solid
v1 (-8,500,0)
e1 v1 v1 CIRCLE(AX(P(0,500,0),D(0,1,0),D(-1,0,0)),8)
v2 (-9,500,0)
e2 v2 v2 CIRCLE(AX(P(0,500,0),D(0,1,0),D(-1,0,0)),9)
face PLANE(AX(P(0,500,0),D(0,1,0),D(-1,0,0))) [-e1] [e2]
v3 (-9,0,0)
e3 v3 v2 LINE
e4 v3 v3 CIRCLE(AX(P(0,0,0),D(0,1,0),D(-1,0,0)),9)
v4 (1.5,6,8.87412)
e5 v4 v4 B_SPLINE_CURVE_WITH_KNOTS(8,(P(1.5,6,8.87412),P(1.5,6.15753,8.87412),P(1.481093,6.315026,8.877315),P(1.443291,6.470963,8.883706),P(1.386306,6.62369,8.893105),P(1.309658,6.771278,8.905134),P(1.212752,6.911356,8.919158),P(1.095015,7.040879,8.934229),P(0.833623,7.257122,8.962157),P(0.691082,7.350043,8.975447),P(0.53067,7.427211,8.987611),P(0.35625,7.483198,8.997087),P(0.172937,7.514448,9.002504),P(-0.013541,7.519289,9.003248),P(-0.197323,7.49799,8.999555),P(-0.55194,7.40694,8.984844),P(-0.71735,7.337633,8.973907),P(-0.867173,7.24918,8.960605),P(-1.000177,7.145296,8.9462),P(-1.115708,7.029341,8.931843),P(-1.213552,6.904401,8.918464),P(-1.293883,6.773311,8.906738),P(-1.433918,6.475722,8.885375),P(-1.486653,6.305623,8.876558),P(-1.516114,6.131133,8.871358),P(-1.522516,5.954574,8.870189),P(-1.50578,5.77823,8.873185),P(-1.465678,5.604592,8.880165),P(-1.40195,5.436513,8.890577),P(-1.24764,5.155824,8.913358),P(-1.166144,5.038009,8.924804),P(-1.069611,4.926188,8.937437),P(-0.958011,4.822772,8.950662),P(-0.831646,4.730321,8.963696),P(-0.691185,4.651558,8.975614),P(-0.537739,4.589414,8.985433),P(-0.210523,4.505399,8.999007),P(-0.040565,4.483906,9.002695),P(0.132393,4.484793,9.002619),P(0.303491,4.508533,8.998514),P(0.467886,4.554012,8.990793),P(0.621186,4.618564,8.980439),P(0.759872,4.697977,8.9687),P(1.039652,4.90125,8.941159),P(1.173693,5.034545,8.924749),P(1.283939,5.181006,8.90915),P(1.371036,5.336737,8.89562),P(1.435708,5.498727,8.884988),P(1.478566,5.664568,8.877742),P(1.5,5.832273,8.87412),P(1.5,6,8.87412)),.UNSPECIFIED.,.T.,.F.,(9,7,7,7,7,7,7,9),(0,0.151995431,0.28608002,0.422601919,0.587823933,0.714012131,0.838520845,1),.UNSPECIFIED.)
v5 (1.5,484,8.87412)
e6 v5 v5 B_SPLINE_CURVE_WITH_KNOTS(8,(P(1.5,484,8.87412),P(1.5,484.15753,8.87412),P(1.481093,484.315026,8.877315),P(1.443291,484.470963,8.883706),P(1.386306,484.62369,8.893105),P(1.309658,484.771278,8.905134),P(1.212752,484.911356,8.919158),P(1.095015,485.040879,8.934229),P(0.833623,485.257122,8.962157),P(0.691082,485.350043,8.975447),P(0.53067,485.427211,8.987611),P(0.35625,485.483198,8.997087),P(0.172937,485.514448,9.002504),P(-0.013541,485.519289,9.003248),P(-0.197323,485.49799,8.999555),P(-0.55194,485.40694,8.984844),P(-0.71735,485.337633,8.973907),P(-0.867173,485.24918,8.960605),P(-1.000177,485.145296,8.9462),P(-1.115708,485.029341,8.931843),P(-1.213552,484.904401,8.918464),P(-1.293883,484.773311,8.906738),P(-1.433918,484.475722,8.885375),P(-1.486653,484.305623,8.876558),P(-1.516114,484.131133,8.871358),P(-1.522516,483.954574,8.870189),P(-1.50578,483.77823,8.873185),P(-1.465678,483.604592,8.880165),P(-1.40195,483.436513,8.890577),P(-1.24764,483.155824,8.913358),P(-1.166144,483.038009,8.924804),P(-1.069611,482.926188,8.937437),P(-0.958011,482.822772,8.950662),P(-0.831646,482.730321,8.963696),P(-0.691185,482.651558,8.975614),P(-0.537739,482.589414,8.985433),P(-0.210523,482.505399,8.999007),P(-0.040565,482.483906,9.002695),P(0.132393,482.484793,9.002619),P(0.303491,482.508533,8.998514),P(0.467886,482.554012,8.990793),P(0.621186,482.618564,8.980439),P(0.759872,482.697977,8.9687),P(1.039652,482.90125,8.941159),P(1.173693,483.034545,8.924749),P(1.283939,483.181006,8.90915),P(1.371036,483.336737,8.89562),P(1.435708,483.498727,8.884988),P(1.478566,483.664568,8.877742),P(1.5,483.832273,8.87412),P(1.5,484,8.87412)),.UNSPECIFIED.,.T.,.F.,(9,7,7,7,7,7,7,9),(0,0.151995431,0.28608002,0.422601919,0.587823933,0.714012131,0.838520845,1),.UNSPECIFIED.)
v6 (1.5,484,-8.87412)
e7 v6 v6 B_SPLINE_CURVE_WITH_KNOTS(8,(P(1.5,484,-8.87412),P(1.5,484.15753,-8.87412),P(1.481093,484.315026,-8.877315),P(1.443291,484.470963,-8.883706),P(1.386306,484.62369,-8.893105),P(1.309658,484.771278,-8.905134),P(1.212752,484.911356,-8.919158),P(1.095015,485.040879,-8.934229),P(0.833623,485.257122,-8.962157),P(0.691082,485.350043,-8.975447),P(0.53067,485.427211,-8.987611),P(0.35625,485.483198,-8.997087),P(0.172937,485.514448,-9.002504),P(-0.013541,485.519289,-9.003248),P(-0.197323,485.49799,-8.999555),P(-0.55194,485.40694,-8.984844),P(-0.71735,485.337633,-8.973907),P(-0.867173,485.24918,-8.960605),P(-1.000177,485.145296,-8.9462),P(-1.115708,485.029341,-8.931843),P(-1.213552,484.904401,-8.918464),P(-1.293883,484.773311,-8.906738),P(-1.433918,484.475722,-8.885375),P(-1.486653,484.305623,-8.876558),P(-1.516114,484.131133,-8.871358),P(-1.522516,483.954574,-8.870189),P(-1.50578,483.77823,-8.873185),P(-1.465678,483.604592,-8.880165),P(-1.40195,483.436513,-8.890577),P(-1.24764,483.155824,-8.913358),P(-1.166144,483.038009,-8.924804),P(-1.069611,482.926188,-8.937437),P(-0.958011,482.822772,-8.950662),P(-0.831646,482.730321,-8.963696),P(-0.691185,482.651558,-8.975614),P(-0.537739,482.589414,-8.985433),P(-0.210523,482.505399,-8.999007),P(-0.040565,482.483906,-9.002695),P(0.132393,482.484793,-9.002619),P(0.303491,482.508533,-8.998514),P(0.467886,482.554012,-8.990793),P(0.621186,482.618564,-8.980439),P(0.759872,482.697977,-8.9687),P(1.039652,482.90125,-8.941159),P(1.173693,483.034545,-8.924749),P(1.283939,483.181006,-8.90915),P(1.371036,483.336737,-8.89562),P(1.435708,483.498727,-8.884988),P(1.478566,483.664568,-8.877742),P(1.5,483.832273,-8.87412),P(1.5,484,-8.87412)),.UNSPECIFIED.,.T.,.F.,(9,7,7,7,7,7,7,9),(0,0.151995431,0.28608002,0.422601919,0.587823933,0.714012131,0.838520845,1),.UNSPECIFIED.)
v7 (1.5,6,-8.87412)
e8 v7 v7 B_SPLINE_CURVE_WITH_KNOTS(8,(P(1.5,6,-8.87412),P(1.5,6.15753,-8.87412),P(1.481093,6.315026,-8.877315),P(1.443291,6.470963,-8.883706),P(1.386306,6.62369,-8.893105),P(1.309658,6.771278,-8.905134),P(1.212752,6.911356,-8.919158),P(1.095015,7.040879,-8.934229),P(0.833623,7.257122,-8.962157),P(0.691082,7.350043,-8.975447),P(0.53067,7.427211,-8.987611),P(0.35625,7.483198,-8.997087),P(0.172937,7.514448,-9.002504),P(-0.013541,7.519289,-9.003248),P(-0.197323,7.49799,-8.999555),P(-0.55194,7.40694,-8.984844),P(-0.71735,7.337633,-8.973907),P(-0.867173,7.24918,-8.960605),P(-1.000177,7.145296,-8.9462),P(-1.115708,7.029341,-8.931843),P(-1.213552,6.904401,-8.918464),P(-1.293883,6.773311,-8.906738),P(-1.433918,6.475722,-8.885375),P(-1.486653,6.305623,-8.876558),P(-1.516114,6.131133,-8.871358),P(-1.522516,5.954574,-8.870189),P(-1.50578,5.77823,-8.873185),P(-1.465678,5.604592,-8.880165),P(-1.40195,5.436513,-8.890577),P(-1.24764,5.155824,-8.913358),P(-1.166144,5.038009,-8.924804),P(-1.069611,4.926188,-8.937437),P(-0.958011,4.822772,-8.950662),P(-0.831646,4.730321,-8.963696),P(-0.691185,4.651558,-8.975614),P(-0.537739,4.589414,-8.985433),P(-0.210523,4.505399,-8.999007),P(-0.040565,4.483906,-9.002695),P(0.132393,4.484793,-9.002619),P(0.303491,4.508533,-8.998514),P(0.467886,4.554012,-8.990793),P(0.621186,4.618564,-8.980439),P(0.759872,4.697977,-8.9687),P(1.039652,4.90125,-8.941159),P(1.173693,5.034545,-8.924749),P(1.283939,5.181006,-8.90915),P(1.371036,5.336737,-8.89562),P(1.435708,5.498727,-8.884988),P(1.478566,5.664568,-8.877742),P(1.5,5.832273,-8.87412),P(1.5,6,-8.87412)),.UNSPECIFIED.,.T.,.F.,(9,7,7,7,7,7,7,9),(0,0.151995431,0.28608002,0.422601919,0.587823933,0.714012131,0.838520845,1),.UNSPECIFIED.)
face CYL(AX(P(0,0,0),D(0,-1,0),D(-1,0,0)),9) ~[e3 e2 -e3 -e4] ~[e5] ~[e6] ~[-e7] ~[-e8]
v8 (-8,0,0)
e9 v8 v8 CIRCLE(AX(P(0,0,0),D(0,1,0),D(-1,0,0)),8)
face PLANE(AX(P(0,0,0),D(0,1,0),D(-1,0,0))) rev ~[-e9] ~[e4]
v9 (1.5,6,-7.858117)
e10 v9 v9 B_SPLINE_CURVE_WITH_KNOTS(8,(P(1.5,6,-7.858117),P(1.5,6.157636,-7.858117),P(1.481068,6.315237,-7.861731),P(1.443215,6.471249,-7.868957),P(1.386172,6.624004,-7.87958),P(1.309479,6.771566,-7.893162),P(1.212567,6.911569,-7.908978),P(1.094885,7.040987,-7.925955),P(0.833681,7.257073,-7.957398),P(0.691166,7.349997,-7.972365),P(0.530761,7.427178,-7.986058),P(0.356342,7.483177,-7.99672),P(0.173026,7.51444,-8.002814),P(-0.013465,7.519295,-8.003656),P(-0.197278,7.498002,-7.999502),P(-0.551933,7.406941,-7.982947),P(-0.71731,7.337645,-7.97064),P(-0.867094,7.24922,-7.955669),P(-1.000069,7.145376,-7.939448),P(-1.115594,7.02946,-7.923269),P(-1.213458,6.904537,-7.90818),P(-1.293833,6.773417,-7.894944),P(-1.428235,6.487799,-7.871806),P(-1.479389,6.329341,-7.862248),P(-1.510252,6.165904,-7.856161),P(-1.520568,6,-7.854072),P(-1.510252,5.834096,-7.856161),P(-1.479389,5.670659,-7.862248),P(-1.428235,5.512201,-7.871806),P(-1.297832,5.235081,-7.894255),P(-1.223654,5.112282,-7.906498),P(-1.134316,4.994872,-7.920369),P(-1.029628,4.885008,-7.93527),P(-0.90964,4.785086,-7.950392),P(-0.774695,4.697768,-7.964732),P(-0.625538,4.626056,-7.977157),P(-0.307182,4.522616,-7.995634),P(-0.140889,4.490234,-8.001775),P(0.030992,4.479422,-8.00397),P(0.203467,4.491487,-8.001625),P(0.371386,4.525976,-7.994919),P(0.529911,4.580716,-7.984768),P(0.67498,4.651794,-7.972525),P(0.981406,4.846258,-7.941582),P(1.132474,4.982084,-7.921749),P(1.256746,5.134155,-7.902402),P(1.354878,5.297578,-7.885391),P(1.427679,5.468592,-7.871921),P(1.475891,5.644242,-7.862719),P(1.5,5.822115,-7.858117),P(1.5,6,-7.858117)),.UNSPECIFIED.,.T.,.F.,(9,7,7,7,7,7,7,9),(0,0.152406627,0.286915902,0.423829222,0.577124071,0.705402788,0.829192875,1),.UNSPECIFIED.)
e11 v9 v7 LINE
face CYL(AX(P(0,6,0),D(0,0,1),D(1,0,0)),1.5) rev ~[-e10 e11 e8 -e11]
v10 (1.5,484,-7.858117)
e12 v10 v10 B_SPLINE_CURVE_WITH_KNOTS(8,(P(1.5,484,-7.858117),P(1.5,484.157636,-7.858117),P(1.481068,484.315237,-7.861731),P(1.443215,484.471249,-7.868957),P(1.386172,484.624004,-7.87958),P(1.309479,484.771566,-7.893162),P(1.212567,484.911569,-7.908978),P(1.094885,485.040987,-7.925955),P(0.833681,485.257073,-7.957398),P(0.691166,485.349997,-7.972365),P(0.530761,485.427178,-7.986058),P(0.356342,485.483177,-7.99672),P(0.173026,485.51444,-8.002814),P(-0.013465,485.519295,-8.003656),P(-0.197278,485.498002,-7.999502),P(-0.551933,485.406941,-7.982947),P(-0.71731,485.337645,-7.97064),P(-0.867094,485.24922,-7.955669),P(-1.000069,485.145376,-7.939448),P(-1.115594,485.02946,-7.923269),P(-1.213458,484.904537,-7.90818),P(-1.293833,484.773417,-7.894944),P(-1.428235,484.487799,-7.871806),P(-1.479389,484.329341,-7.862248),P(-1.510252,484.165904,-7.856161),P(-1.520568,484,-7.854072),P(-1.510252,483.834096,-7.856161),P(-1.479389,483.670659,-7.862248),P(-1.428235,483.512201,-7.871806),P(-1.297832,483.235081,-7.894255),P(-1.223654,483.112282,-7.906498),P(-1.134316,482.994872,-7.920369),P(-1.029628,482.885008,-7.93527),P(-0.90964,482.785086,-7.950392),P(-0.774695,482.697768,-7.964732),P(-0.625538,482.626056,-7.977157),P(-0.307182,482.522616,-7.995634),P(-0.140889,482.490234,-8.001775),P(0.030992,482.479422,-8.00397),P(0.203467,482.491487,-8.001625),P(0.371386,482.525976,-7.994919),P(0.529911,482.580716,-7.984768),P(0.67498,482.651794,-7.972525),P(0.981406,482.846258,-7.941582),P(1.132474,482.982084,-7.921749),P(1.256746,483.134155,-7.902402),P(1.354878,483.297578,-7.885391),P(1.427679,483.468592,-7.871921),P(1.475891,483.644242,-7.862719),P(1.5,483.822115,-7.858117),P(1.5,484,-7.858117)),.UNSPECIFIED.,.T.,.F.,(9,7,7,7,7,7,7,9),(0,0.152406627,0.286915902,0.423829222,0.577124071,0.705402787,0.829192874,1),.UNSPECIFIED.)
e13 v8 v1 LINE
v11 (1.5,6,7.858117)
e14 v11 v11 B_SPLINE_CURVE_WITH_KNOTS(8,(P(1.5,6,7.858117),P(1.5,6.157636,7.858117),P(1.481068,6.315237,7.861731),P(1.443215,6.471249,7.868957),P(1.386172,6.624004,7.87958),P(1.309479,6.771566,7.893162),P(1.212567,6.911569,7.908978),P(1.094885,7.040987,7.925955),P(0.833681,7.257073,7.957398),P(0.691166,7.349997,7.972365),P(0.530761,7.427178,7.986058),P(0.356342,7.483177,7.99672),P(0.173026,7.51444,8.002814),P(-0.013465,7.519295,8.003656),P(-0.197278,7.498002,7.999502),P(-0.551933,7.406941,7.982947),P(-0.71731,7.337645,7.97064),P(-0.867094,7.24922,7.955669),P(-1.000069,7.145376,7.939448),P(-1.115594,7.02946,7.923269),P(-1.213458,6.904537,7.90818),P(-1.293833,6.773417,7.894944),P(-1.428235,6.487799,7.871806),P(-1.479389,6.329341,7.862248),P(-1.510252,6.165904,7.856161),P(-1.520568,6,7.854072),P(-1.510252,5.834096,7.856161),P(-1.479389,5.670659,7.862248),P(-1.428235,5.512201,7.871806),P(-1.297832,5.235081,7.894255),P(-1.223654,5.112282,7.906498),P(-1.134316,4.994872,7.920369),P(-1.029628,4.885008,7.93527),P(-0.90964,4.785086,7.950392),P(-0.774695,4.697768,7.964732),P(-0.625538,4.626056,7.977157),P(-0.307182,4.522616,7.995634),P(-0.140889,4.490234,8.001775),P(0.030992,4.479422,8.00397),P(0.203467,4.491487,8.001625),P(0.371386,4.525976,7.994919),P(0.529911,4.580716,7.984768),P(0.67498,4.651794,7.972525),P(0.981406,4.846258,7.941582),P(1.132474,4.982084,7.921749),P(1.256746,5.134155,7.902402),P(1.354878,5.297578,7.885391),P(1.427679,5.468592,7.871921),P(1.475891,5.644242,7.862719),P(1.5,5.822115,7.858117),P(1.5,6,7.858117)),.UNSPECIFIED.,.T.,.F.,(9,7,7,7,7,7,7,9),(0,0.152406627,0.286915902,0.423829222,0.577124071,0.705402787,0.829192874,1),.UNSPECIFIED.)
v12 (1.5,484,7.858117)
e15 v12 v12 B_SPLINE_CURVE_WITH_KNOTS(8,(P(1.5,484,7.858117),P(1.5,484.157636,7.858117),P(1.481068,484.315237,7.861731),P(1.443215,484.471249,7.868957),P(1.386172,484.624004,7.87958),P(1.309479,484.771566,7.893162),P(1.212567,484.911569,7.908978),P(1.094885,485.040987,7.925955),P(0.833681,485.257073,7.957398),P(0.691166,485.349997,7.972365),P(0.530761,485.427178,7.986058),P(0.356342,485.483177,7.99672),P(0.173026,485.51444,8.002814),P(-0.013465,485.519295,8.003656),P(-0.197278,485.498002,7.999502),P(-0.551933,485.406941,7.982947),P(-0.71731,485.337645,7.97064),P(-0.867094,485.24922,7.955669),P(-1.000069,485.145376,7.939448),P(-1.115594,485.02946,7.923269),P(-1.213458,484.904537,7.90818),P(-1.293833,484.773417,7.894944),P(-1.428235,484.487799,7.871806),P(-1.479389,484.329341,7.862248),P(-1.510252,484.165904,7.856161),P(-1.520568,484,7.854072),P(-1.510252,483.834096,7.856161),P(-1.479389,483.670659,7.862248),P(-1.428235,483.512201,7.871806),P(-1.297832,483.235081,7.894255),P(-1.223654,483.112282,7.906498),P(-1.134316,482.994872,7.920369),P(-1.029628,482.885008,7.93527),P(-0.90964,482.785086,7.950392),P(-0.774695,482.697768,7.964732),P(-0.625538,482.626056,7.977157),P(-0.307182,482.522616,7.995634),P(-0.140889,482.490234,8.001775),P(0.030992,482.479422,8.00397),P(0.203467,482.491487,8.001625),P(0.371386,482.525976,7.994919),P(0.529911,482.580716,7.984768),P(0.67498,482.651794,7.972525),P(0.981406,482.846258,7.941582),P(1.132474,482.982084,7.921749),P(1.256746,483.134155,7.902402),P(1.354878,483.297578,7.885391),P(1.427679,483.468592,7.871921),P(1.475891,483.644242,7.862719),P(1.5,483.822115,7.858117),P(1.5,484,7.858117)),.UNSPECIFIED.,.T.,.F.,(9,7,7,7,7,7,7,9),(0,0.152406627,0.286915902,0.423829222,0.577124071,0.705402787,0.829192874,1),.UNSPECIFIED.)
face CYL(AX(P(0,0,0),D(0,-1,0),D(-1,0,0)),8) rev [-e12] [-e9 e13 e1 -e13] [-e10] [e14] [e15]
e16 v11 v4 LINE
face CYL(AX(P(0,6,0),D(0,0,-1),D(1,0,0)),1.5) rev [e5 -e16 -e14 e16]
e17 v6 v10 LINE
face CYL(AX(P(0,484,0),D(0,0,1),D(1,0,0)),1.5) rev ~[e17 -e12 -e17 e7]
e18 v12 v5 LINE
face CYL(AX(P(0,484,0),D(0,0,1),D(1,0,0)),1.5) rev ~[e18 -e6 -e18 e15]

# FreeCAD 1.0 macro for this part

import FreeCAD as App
import Part
import Sketcher
Q = App.Units.Quantity

doc = App.newDocument("Part")
body = doc.addObject("PartDesign::Body", "Body")

sketch1 = body.newObject("Sketcher::SketchObject", "Sketch")
sketch1.AttachmentSupport = (doc.getObject("XZ_Plane"), [""])
sketch1.MapMode = "FlatFace"
sketch1.addGeometry([
    Part.Circle(App.Vector(0, 0, 0), App.Vector(0, 0, 1), 9),
    Part.Circle(App.Vector(0, 0, 0), App.Vector(0, 0, 1), 8),
], False)
sketch1.addConstraint([
    Sketcher.Constraint("Coincident", 0, 3, -1, 1),
    Sketcher.Constraint("Coincident", 1, 3, -1, 1),
    Sketcher.Constraint("Diameter", 0, Q("18 mm")),
    Sketcher.Constraint("Diameter", 1, Q("16 mm")),
])
pad1 = body.newObject("PartDesign::Pad", "Pad")
pad1.Profile = sketch1
pad1.Length = 500
pad1.Reversed = True

sketch2 = body.newObject("Sketcher::SketchObject", "Sketch001")
sketch2.AttachmentSupport = (doc.getObject("XY_Plane"), [""])
sketch2.MapMode = "FlatFace"
sketch2.addGeometry([
    Part.Circle(App.Vector(0, 6, 0), App.Vector(0, 0, 1), 1.5),
    Part.Circle(App.Vector(0, 484, 0), App.Vector(0, 0, 1), 1.5),
], False)
sketch2.addConstraint([
    Sketcher.Constraint("Equal", 0, 1),
    Sketcher.Constraint("PointOnObject", 0, 3, -2),
    Sketcher.Constraint("PointOnObject", 1, 3, -2),
    Sketcher.Constraint("Diameter", 0, Q("3 mm")),
    Sketcher.Constraint("DistanceY", -1, 1, 0, 3, Q("6 mm")),
    Sketcher.Constraint("DistanceY", -1, 1, 1, 3, Q("484 mm")),
])
pocket1 = body.newObject("PartDesign::Pocket", "Pocket")
pocket1.Profile = sketch2
pocket1.Type = "ThroughAll"
pocket1.Midplane = True

doc.recompute()
